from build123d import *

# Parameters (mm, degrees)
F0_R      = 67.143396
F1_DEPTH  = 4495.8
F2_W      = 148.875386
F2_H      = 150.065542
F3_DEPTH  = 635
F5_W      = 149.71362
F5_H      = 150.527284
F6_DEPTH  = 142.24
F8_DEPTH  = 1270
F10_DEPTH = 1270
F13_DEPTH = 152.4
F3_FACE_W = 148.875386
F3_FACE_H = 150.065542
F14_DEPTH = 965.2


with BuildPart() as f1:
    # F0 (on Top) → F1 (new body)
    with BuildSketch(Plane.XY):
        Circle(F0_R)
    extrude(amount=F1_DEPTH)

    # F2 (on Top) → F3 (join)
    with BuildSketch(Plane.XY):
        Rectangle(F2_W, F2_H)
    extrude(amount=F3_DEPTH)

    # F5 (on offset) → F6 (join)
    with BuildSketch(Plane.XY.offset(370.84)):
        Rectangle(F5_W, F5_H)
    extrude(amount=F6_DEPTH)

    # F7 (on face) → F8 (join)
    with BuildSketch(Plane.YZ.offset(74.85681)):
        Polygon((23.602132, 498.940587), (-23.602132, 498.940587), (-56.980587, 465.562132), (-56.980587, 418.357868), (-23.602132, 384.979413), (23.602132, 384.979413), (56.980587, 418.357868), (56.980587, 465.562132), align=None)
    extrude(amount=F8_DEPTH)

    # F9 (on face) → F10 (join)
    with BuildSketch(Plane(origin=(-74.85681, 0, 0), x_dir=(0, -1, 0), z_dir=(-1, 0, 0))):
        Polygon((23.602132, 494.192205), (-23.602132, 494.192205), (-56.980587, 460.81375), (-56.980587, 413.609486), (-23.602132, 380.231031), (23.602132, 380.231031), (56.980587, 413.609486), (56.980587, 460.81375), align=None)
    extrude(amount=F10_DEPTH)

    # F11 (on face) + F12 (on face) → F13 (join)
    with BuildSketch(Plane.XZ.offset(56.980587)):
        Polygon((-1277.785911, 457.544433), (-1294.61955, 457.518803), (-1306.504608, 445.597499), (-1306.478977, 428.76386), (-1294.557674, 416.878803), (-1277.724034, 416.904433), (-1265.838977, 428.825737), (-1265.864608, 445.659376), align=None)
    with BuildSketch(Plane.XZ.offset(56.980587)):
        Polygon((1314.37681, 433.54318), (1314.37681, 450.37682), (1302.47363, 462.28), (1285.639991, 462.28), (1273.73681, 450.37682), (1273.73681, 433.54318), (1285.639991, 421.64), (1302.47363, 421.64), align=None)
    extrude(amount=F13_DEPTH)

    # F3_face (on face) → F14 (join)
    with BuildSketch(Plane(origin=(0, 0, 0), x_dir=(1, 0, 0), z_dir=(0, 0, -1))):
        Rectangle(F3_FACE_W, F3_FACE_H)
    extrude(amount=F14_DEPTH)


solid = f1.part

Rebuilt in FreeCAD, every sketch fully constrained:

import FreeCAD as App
import Part
import Sketcher
from FreeCAD import Vector
Q = App.Units.Quantity


def add_polygon(sketch, points):
    """Adds a closed chain of lines whose ends are joined by coincident constraints."""
    first, n = sketch.GeometryCount, len(points)
    for a, b in zip(points, points[1:] + points[:1]):
        sketch.addGeometry(Part.LineSegment(App.Vector(*a, 0), App.Vector(*b, 0)), False)
    for i in range(n):
        sketch.addConstraint(Sketcher.Constraint("Coincident", first + i, 2, first + (i + 1) % n, 1))

doc = App.newDocument("Part")
body = doc.addObject("PartDesign::Body", "Body")

# Sketch on XY plane
sketch1 = body.newObject("Sketcher::SketchObject", "Sketch")
sketch1.AttachmentSupport = (doc.getObject("XY_Plane"), [""])
sketch1.MapMode = "FlatFace"
sketch1.addGeometry(Part.Circle(Vector(0, 0, 0), Vector(0, 0, 1), 67), False)
sketch1.addConstraint([
    Sketcher.Constraint("Coincident", 0, 3, -1, 1),
    Sketcher.Constraint("Diameter", 0, Q("134.286792 mm")),
])
pad1 = body.newObject("PartDesign::Pad", "Pad")
pad1.Profile = sketch1
pad1.Length = Q("177 in")

# Sketch on XY plane
sketch2 = body.newObject("Sketcher::SketchObject", "Sketch001")
sketch2.AttachmentSupport = (doc.getObject("XY_Plane"), [""])
sketch2.MapMode = "FlatFace"
add_polygon(sketch2, [(-74, 75), (-74, -75), (74, -75), (74, 75)])  # lines 0-3
sketch2.addConstraint([
    Sketcher.Constraint("Vertical", 0),
    Sketcher.Constraint("Horizontal", 1),
    Sketcher.Constraint("Vertical", 2),
    Sketcher.Constraint("Horizontal", 3),
    Sketcher.Constraint("Symmetric", 0, 2, 2, 2, -1, 1),
    Sketcher.Constraint("DistanceY", 0, 2, 0, 1, Q("150.065542 mm")),
    Sketcher.Constraint("DistanceX", 1, 1, 1, 2, Q("148.875386 mm")),
])
pad2 = body.newObject("PartDesign::Pad", "Pad001")
pad2.Profile = sketch2
pad2.Length = Q("25 in")

# Sketch on XY plane
sketch3 = body.newObject("Sketcher::SketchObject", "Sketch002")
sketch3.AttachmentSupport = (doc.getObject("XY_Plane"), [""])
sketch3.MapMode = "FlatFace"
sketch3.AttachmentOffset = App.Placement(Vector(0, 0, 14.6 * 25.4), App.Rotation())
add_polygon(sketch3, [(-75, 75), (-75, -75), (75, -75), (75, 75)])  # lines 0-3
sketch3.addConstraint([
    Sketcher.Constraint("Vertical", 0),
    Sketcher.Constraint("Horizontal", 1),
    Sketcher.Constraint("Vertical", 2),
    Sketcher.Constraint("Horizontal", 3),
    Sketcher.Constraint("Symmetric", 0, 2, 2, 2, -1, 1),
    Sketcher.Constraint("DistanceX", 1, 1, 1, 2, Q("149.71362 mm")),
    Sketcher.Constraint("DistanceY", 0, 2, 0, 1, Q("150.527284 mm")),
])
pad3 = body.newObject("PartDesign::Pad", "Pad002")
pad3.Profile = sketch3
pad3.Length = Q("5.6 in")

# Sketch on YZ plane
sketch4 = body.newObject("Sketcher::SketchObject", "Sketch003")
sketch4.AttachmentSupport = (doc.getObject("YZ_Plane"), [""])
sketch4.MapMode = "FlatFace"
sketch4.AttachmentOffset = App.Placement(Vector(0, 0, 74.85681), App.Rotation())
add_polygon(sketch4, [(24, 499), (-24, 499), (-57, 466), (-57, 418), (-24, 385), (24, 385), (57, 418), (57, 466)])  # lines 0-7
sketch4.addConstraint([
    Sketcher.Constraint("Horizontal", 0),
    Sketcher.Constraint("Vertical", 2),
    Sketcher.Constraint("Horizontal", 4),
    Sketcher.Constraint("Vertical", 6),
    Sketcher.Constraint("Symmetric", 2, 2, 5, 2, -2),
    Sketcher.Constraint("Perpendicular", 1, 3),
    Sketcher.Constraint("Perpendicular", 3, 5),
    Sketcher.Constraint("Perpendicular", 5, 7),
    Sketcher.Constraint("Horizontal", 1, 2, 6, 2),
    Sketcher.Constraint("Vertical", 0, 2, 3, 2),
    Sketcher.Constraint("Vertical", 4, 2, 7, 2),
    Sketcher.Constraint("Equal", 4, 2),
    Sketcher.Constraint("DistanceX", 0, 2, 0, 1, Q("47.204264 mm")),
    Sketcher.Constraint("DistanceY", -1, 1, 1, 2, Q("465.562132 mm")),
    Sketcher.Constraint("DistanceY", 2, 2, 0, 2, Q("80.582719 mm")),
])
pad4 = body.newObject("PartDesign::Pad", "Pad003")
pad4.Profile = sketch4
pad4.Length = Q("50 in")

# Sketch on YZ plane
sketch5 = body.newObject("Sketcher::SketchObject", "Sketch004")
sketch5.AttachmentSupport = (doc.getObject("YZ_Plane"), [""])
sketch5.MapMode = "FlatFace"
sketch5.AttachmentOffset = App.Placement(Vector(0, 0, -74.85681), App.Rotation())
add_polygon(sketch5, [(-24, 494), (24, 494), (57, 461), (57, 414), (24, 380), (-24, 380), (-57, 414), (-57, 461)])  # lines 0-7
sketch5.addConstraint([
    Sketcher.Constraint("Horizontal", 0),
    Sketcher.Constraint("Vertical", 2),
    Sketcher.Constraint("Horizontal", 4),
    Sketcher.Constraint("Vertical", 6),
    Sketcher.Constraint("Symmetric", 2, 2, 5, 2, -2),
    Sketcher.Constraint("Perpendicular", 1, 3),
    Sketcher.Constraint("Perpendicular", 3, 5),
    Sketcher.Constraint("Perpendicular", 5, 7),
    Sketcher.Constraint("Horizontal", 1, 2, 6, 2),
    Sketcher.Constraint("Vertical", 0, 2, 3, 2),
    Sketcher.Constraint("Vertical", 4, 2, 7, 2),
    Sketcher.Constraint("Equal", 4, 2),
    Sketcher.Constraint("DistanceX", 0, 1, 0, 2, Q("47.204264 mm")),
    Sketcher.Constraint("DistanceY", -1, 1, 1, 2, Q("460.81375 mm")),
    Sketcher.Constraint("DistanceY", -1, 1, 3, 2, Q("380.231031 mm")),
])
pad5 = body.newObject("PartDesign::Pad", "Pad004")
pad5.Profile = sketch5
pad5.Length = Q("50 in")
pad5.Reversed = True

# Sketch on XZ plane
sketch6 = body.newObject("Sketcher::SketchObject", "Sketch005")
sketch6.AttachmentSupport = (doc.getObject("XZ_Plane"), [""])
sketch6.MapMode = "FlatFace"
sketch6.AttachmentOffset = App.Placement(Vector(0, 0, 56.980587), App.Rotation())
add_polygon(sketch6, [(-1278, 458), (-1295, 458), (-1307, 446), (-1306, 429), (-1295, 417), (-1278, 417), (-1266, 429), (-1266, 446)])  # lines 0-7
add_polygon(sketch6, [(1314, 434), (1314, 450), (1302, 462), (1286, 462), (1274, 450), (1274, 434), (1286, 422), (1302, 422)])  # lines 8-15
sketch6.addConstraint([
    Sketcher.Constraint("Vertical", 8),
    Sketcher.Constraint("Horizontal", 10),
    Sketcher.Constraint("Vertical", 12),
    Sketcher.Constraint("Horizontal", 14),
    Sketcher.Constraint("Perpendicular", 0, 2),
    Sketcher.Constraint("Perpendicular", 1, 3),
    Sketcher.Constraint("Perpendicular", 2, 4),
    Sketcher.Constraint("Perpendicular", 3, 5),
    Sketcher.Constraint("Perpendicular", 4, 6),
    Sketcher.Constraint("Perpendicular", 5, 7),
    Sketcher.Constraint("Perpendicular", 9, 11),
    Sketcher.Constraint("Perpendicular", 11, 13),
    Sketcher.Constraint("Perpendicular", 13, 15),
    Sketcher.Constraint("Horizontal", 8, 2, 11, 2),
    Sketcher.Constraint("Horizontal", 12, 2, 15, 2),
    Sketcher.Constraint("Vertical", 10, 2, 13, 2),
    Sketcher.Constraint("Vertical", 9, 2, 14, 2),
    Sketcher.Constraint("Equal", 14, 8),
    Sketcher.Constraint("Equal", 0, 1),
    Sketcher.Constraint("Equal", 1, 2),
    Sketcher.Constraint("Equal", 2, 3),
    Sketcher.Constraint("Equal", 3, 4),
    Sketcher.Constraint("Equal", 4, 5),
    Sketcher.Constraint("DistanceY", -1, 1, 9, 2, Q("18.2 in")),
    Sketcher.Constraint("DistanceY", -1, 1, 13, 2, Q("16.6 in")),
    Sketcher.Constraint("DistanceY", 3, 2, 0, 2, Q("1.6 in")),
    Sketcher.Constraint("DistanceX", 10, 2, 10, 1, Q("16.833639 mm")),
    Sketcher.Constraint("DistanceY", -1, 1, 1, 2, Q("445.597499 mm")),
    Sketcher.Constraint("DistanceX", 6, 2, 10, 2, Q("2551.504599 mm")),
    Sketcher.Constraint("DistanceX", 7, 2, 10, 2, Q("2563.425902 mm")),
    Sketcher.Constraint("DistanceX", 0, 2, -1, 1, Q("1294.61955 mm")),
    Sketcher.Constraint("DistanceX", 1, 2, 2, 2, Q("0.025631 mm")),
])
pad6 = body.newObject("PartDesign::Pad", "Pad005")
pad6.Profile = sketch6
pad6.Length = Q("6 in")

# Sketch on XY plane
sketch7 = body.newObject("Sketcher::SketchObject", "Sketch006")
sketch7.AttachmentSupport = (doc.getObject("XY_Plane"), [""])
sketch7.MapMode = "FlatFace"
add_polygon(sketch7, [(-74, -75), (-74, 75), (74, 75), (74, -75)])  # lines 0-3
sketch7.addConstraint([
    Sketcher.Constraint("Vertical", 0),
    Sketcher.Constraint("Horizontal", 1),
    Sketcher.Constraint("Vertical", 2),
    Sketcher.Constraint("Horizontal", 3),
    Sketcher.Constraint("Symmetric", 0, 2, 2, 2, -1, 1),
    Sketcher.Constraint("DistanceY", 0, 1, 0, 2, Q("150.065542 mm")),
    Sketcher.Constraint("DistanceX", 1, 1, 1, 2, Q("148.875386 mm")),
])
pad7 = body.newObject("PartDesign::Pad", "Pad006")
pad7.Profile = sketch7
pad7.Length = Q("38 in")
pad7.Reversed = True

doc.recompute()
